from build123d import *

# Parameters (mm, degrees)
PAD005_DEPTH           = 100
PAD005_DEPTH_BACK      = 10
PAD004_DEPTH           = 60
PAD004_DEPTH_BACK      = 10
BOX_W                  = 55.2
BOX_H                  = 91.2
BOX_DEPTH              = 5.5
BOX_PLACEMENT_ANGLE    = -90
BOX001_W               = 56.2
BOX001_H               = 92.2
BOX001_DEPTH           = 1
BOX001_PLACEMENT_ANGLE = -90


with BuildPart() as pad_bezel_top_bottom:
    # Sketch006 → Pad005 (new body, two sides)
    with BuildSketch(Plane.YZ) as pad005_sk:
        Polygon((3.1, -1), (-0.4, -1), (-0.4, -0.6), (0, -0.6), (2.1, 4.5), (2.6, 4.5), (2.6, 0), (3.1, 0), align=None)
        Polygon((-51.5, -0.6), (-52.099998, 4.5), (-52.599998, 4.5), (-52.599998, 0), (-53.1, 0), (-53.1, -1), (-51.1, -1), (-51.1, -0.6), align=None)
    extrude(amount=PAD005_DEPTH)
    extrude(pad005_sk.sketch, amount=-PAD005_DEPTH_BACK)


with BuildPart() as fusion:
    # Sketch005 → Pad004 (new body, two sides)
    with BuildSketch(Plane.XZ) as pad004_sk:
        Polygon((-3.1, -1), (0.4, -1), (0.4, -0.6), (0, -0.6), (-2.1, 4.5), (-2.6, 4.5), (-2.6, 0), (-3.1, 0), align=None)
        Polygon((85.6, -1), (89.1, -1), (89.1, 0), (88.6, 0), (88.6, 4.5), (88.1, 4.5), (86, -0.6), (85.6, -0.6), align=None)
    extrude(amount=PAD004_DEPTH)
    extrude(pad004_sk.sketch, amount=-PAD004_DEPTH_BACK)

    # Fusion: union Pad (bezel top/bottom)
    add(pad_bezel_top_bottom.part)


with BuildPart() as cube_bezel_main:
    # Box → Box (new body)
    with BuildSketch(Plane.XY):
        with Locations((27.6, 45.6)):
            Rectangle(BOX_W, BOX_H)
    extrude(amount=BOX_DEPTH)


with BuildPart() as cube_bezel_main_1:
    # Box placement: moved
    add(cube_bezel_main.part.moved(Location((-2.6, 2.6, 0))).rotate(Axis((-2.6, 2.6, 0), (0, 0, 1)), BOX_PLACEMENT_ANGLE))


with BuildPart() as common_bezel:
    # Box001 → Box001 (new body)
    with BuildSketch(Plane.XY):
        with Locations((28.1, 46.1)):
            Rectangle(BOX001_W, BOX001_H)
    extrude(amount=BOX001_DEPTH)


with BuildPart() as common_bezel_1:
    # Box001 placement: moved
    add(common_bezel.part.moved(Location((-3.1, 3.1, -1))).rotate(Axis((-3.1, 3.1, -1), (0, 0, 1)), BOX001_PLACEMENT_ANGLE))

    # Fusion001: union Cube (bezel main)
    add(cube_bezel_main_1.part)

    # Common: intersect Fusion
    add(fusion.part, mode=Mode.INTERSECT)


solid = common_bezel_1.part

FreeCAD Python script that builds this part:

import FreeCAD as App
import Part
import Sketcher

doc = App.newDocument("Part")
body = doc.addObject("PartDesign::Body", "Body")
body.AllowCompound = True

sketch1 = doc.addObject("Sketcher::SketchObject", "Sketch")
body.addObject(sketch1)
sketch1.AttachmentSupport = (doc.YZ_Plane, [""])
sketch1.MapMode = "FlatFace"
sketch1.addGeometry([
    Part.LineSegment(App.Vector(-0.4, -1, 0), App.Vector(3.1, -1, 0)),
    Part.LineSegment(App.Vector(3.1, -1, 0), App.Vector(3.1, 0, 0)),
    Part.LineSegment(App.Vector(3.1, 0, 0), App.Vector(2.6, 0, 0)),
    Part.LineSegment(App.Vector(2.6, 0, 0), App.Vector(2.6, 4.5, 0)),
    Part.LineSegment(App.Vector(2.6, 4.5, 0), App.Vector(2.1, 4.5, 0)),
    Part.LineSegment(App.Vector(2.1, 4.5, 0), App.Vector(0, -0.6, 0)),
    Part.LineSegment(App.Vector(0, -0.6, 0), App.Vector(-0.4, -0.6, 0)),
    Part.LineSegment(App.Vector(-0.4, -0.6, 0), App.Vector(-0.4, -1, 0)),
    Part.LineSegment(App.Vector(-51.5, -0.6, 0), App.Vector(-52.099998, 4.5, 0)),
    Part.LineSegment(App.Vector(-52.099998, 4.5, 0), App.Vector(-52.599998, 4.5, 0)),
    Part.LineSegment(App.Vector(-52.599998, 4.5, 0), App.Vector(-52.599998, 0, 0)),
    Part.LineSegment(App.Vector(-52.599998, 0, 0), App.Vector(-53.1, 0, 0)),
    Part.LineSegment(App.Vector(-53.1, 0, 0), App.Vector(-53.1, -1, 0)),
    Part.LineSegment(App.Vector(-53.1, -1, 0), App.Vector(-51.1, -1, 0)),
    Part.LineSegment(App.Vector(-51.1, -1, 0), App.Vector(-51.1, -0.6, 0)),
    Part.LineSegment(App.Vector(-51.1, -0.6, 0), App.Vector(-51.5, -0.6, 0)),
], False)
sketch1.addConstraint([
    Sketcher.Constraint("Coincident", 0, 2, 1, 1),
    Sketcher.Constraint("Coincident", 1, 2, 2, 1),
    Sketcher.Constraint("Coincident", 2, 2, 3, 1),
    Sketcher.Constraint("Coincident", 3, 2, 4, 1),
    Sketcher.Constraint("Coincident", 4, 2, 5, 1),
    Sketcher.Constraint("Coincident", 5, 2, 6, 1),
    Sketcher.Constraint("Coincident", 6, 2, 7, 1),
    Sketcher.Constraint("Coincident", 7, 2, 0, 1),
    Sketcher.Constraint("Coincident", 8, 2, 9, 1),
    Sketcher.Constraint("Coincident", 9, 2, 10, 1),
    Sketcher.Constraint("Coincident", 10, 2, 11, 1),
    Sketcher.Constraint("Coincident", 11, 2, 12, 1),
    Sketcher.Constraint("Coincident", 12, 2, 13, 1),
    Sketcher.Constraint("Coincident", 13, 2, 14, 1),
    Sketcher.Constraint("Coincident", 14, 2, 15, 1),
    Sketcher.Constraint("Coincident", 15, 2, 8, 1),
    Sketcher.Constraint("Horizontal", 0),
    Sketcher.Constraint("Vertical", 1),
    Sketcher.Constraint("Horizontal", 2),
    Sketcher.Constraint("Vertical", 3),
    Sketcher.Constraint("Horizontal", 4),
    Sketcher.Constraint("Horizontal", 6),
    Sketcher.Constraint("Vertical", 7),
    Sketcher.Constraint("Horizontal", 9),
    Sketcher.Constraint("Vertical", 10),
    Sketcher.Constraint("Horizontal", 11),
    Sketcher.Constraint("Vertical", 12),
    Sketcher.Constraint("Horizontal", 13),
    Sketcher.Constraint("Vertical", 14),
    Sketcher.Constraint("Horizontal", 15),
    Sketcher.Constraint("PointOnObject", 1, 2, -1),
    Sketcher.Constraint("PointOnObject", 5, 2, -2),
    Sketcher.Constraint("PointOnObject", 10, 2, -1),
    Sketcher.Constraint("Horizontal", 4, 2, 8, 2),
    Sketcher.Constraint("Horizontal", 7, 2, 12, 2),
    Sketcher.Constraint("Horizontal", 6, 2, 14, 2),
    Sketcher.Constraint("Equal", 2, 4),
    Sketcher.Constraint("Equal", 4, 9),
    Sketcher.Constraint("Equal", 6, 15),
    Sketcher.Constraint("Equal", 15, 7),
    Sketcher.Constraint("DistanceX", 13, 1, 13, 2, 2.0),
    Sketcher.Constraint("DistanceY", 1, 1, 1, 2, 1.0),
    Sketcher.Constraint("DistanceX", 0, 1, 0, 2, 3.5),
    Sketcher.Constraint("DistanceX", 2, 2, 2, 1, 0.5),
    Sketcher.Constraint("DistanceX", 6, 2, 6, 1, 0.4),
    Sketcher.Constraint("DistanceY", 3, 1, 3, 2, 4.5),
    Sketcher.Constraint("DistanceX", 11, 2, -1, 1, 53.1),
    Sketcher.Constraint("DistanceX", 11, 2, 11, 1, 0.500002),
])
pad1 = doc.addObject("PartDesign::Pad", "Pad")
body.addObject(pad1)
pad1.Profile = sketch1
pad1.Type = "TwoLengths"
pad1.Length = 100
pad1.Length2 = 10
body2 = doc.addObject("PartDesign::Body", "Body001")
body2.AllowCompound = True

sketch2 = doc.addObject("Sketcher::SketchObject", "Sketch001")
body2.addObject(sketch2)
sketch2.AttachmentSupport = (doc.getObject("XZ_Plane001"), [""])
sketch2.MapMode = "FlatFace"
sketch2.addGeometry([
    Part.LineSegment(App.Vector(-3.1, -1, 0), App.Vector(0.4, -1, 0)),
    Part.LineSegment(App.Vector(0.4, -1, 0), App.Vector(0.4, -0.6, 0)),
    Part.LineSegment(App.Vector(0.4, -0.6, 0), App.Vector(0, -0.6, 0)),
    Part.LineSegment(App.Vector(0, -0.6, 0), App.Vector(-2.1, 4.5, 0)),
    Part.LineSegment(App.Vector(-2.1, 4.5, 0), App.Vector(-2.6, 4.5, 0)),
    Part.LineSegment(App.Vector(-2.6, 4.5, 0), App.Vector(-2.6, 0, 0)),
    Part.LineSegment(App.Vector(-2.6, 0, 0), App.Vector(-3.1, 0, 0)),
    Part.LineSegment(App.Vector(-3.1, 0, 0), App.Vector(-3.1, -1, 0)),
    Part.LineSegment(App.Vector(85.6, -1, 0), App.Vector(89.1, -1, 0)),
    Part.LineSegment(App.Vector(89.1, -1, 0), App.Vector(89.1, 0, 0)),
    Part.LineSegment(App.Vector(89.1, 0, 0), App.Vector(88.6, 0, 0)),
    Part.LineSegment(App.Vector(88.6, 0, 0), App.Vector(88.6, 4.5, 0)),
    Part.LineSegment(App.Vector(88.6, 4.5, 0), App.Vector(88.1, 4.5, 0)),
    Part.LineSegment(App.Vector(88.1, 4.5, 0), App.Vector(86, -0.6, 0)),
    Part.LineSegment(App.Vector(86, -0.6, 0), App.Vector(85.6, -0.6, 0)),
    Part.LineSegment(App.Vector(85.6, -0.6, 0), App.Vector(85.6, -1, 0)),
], False)
sketch2.addConstraint([
    Sketcher.Constraint("Coincident", 0, 2, 1, 1),
    Sketcher.Constraint("Coincident", 1, 2, 2, 1),
    Sketcher.Constraint("Coincident", 2, 2, 3, 1),
    Sketcher.Constraint("Coincident", 3, 2, 4, 1),
    Sketcher.Constraint("Coincident", 4, 2, 5, 1),
    Sketcher.Constraint("Coincident", 5, 2, 6, 1),
    Sketcher.Constraint("Coincident", 6, 2, 7, 1),
    Sketcher.Constraint("Coincident", 7, 2, 0, 1),
    Sketcher.Constraint("Coincident", 8, 2, 9, 1),
    Sketcher.Constraint("Coincident", 9, 2, 10, 1),
    Sketcher.Constraint("Coincident", 10, 2, 11, 1),
    Sketcher.Constraint("Coincident", 11, 2, 12, 1),
    Sketcher.Constraint("Coincident", 12, 2, 13, 1),
    Sketcher.Constraint("Coincident", 13, 2, 14, 1),
    Sketcher.Constraint("Coincident", 14, 2, 15, 1),
    Sketcher.Constraint("Coincident", 15, 2, 8, 1),
    Sketcher.Constraint("Horizontal", 0),
    Sketcher.Constraint("Vertical", 1),
    Sketcher.Constraint("Horizontal", 2),
    Sketcher.Constraint("Horizontal", 4),
    Sketcher.Constraint("Vertical", 5),
    Sketcher.Constraint("Horizontal", 6),
    Sketcher.Constraint("Vertical", 7),
    Sketcher.Constraint("Horizontal", 8),
    Sketcher.Constraint("Vertical", 9),
    Sketcher.Constraint("Horizontal", 10),
    Sketcher.Constraint("Vertical", 11),
    Sketcher.Constraint("Horizontal", 12),
    Sketcher.Constraint("Horizontal", 14),
    Sketcher.Constraint("Vertical", 15),
    Sketcher.Constraint("PointOnObject", 2, 2, -2),
    Sketcher.Constraint("PointOnObject", 5, 2, -1),
    Sketcher.Constraint("PointOnObject", 9, 2, -1),
    Sketcher.Constraint("Horizontal", 7, 2, 8, 2),
    Sketcher.Constraint("Horizontal", 4, 2, 11, 2),
    Sketcher.Constraint("Horizontal", 2, 2, 13, 2),
    Sketcher.Constraint("Equal", 4, 6),
    Sketcher.Constraint("Equal", 0, 8),
    Sketcher.Constraint("Equal", 6, 10),
    Sketcher.Constraint("Equal", 10, 12),
    Sketcher.Constraint("Equal", 2, 14),
    Sketcher.Constraint("Equal", 14, 1),
    Sketcher.Constraint("DistanceY", 7, 2, 7, 1, 1.0),
    Sketcher.Constraint("DistanceX", 0, 1, 0, 2, 3.5),
    Sketcher.Constraint("DistanceX", 2, 2, 2, 1, 0.4),
    Sketcher.Constraint("DistanceX", 4, 2, 4, 1, 0.5),
    Sketcher.Constraint("DistanceY", 5, 2, 5, 1, 4.5),
    Sketcher.Constraint("DistanceX", -1, 1, 13, 2, 86.0),
])
pad2 = doc.addObject("PartDesign::Pad", "Pad001")
body2.addObject(pad2)
pad2.Profile = sketch2
pad2.Type = "TwoLengths"
pad2.Length = 60
pad2.Length2 = 10
doc.recompute()

boolean = doc.addObject("PartDesign::Boolean", "Boolean")
body2.addObject(boolean)
boolean.Type = "Fuse"
boolean.addObjects([body])
body3 = doc.addObject("PartDesign::Body", "Body002")

sketch3 = doc.addObject("Sketcher::SketchObject", "Sketch002")
body3.addObject(sketch3)
sketch3.AttachmentSupport = (doc.getObject("XY_Plane002"), [""])
sketch3.MapMode = "FlatFace"
sketch3.addGeometry([
    Part.LineSegment(App.Vector(0, 91.2, 0), App.Vector(0, 0, 0)),
    Part.LineSegment(App.Vector(0, 0, 0), App.Vector(55.2, 0, 0)),
    Part.LineSegment(App.Vector(55.2, 0, 0), App.Vector(55.2, 91.2, 0)),
    Part.LineSegment(App.Vector(55.2, 91.2, 0), App.Vector(0, 91.2, 0)),
], False)
sketch3.addConstraint([
    Sketcher.Constraint("Coincident", 0, 2, 1, 1),
    Sketcher.Constraint("Coincident", 1, 2, 2, 1),
    Sketcher.Constraint("Coincident", 2, 2, 3, 1),
    Sketcher.Constraint("Coincident", 3, 2, 0, 1),
    Sketcher.Constraint("Vertical", 0),
    Sketcher.Constraint("Horizontal", 1),
    Sketcher.Constraint("Vertical", 2),
    Sketcher.Constraint("Horizontal", 3),
    Sketcher.Constraint("Coincident", 0, 2, -1, 1),
    Sketcher.Constraint("DistanceX", 1, 1, 1, 2, 55.2),
    Sketcher.Constraint("DistanceY", 0, 2, 0, 1, 91.2),
])
pad3 = doc.addObject("PartDesign::Pad", "Pad002")
body3.addObject(pad3)
pad3.Profile = sketch3
pad3.Length = 5.5
body4 = doc.addObject("PartDesign::Body", "Body003")
doc.recompute()

body3.Placement = App.Placement(App.Vector(-2.6, 2.6, 0), App.Rotation(App.Vector(0, 0, 1), 270))
boolean2 = doc.addObject("PartDesign::Boolean", "Boolean001")
body4.addObject(boolean2)
boolean2.Type = "Fuse"
boolean2.addObjects([body3])
body5 = doc.addObject("PartDesign::Body", "Body004")

sketch4 = doc.addObject("Sketcher::SketchObject", "Sketch003")
body5.addObject(sketch4)
sketch4.AttachmentSupport = (doc.getObject("XY_Plane004"), [""])
sketch4.MapMode = "FlatFace"
sketch4.addGeometry([
    Part.LineSegment(App.Vector(0, 92.2, 0), App.Vector(0, 0, 0)),
    Part.LineSegment(App.Vector(0, 0, 0), App.Vector(56.2, 0, 0)),
    Part.LineSegment(App.Vector(56.2, 0, 0), App.Vector(56.2, 92.2, 0)),
    Part.LineSegment(App.Vector(56.2, 92.2, 0), App.Vector(0, 92.2, 0)),
], False)
sketch4.addConstraint([
    Sketcher.Constraint("Coincident", 0, 2, 1, 1),
    Sketcher.Constraint("Coincident", 1, 2, 2, 1),
    Sketcher.Constraint("Coincident", 2, 2, 3, 1),
    Sketcher.Constraint("Coincident", 3, 2, 0, 1),
    Sketcher.Constraint("Vertical", 0),
    Sketcher.Constraint("Horizontal", 1),
    Sketcher.Constraint("Vertical", 2),
    Sketcher.Constraint("Horizontal", 3),
    Sketcher.Constraint("Coincident", 0, 2, -1, 1),
    Sketcher.Constraint("DistanceX", 1, 1, 1, 2, 56.2),
    Sketcher.Constraint("DistanceY", 0, 2, 0, 1, 92.2),
])
pad4 = doc.addObject("PartDesign::Pad", "Pad003")
body5.addObject(pad4)
pad4.Profile = sketch4
pad4.Length = 1
body6 = doc.addObject("PartDesign::Body", "Body005")
doc.recompute()

body5.Placement = App.Placement(App.Vector(-3.1, 3.1, -1), App.Rotation(App.Vector(0, 0, 1), 270))
boolean3 = doc.addObject("PartDesign::Boolean", "Boolean002")
body6.addObject(boolean3)
boolean3.Type = "Fuse"
boolean3.addObjects([body5])
doc.recompute()

boolean4 = doc.addObject("PartDesign::Boolean", "Boolean003")
body6.addObject(boolean4)
boolean4.Type = "Fuse"
boolean4.addObjects([body4])
doc.recompute()

boolean5 = doc.addObject("PartDesign::Boolean", "Boolean004")
body6.addObject(boolean5)
boolean5.Type = "Common"
boolean5.addObjects([body2])

doc.recompute()
